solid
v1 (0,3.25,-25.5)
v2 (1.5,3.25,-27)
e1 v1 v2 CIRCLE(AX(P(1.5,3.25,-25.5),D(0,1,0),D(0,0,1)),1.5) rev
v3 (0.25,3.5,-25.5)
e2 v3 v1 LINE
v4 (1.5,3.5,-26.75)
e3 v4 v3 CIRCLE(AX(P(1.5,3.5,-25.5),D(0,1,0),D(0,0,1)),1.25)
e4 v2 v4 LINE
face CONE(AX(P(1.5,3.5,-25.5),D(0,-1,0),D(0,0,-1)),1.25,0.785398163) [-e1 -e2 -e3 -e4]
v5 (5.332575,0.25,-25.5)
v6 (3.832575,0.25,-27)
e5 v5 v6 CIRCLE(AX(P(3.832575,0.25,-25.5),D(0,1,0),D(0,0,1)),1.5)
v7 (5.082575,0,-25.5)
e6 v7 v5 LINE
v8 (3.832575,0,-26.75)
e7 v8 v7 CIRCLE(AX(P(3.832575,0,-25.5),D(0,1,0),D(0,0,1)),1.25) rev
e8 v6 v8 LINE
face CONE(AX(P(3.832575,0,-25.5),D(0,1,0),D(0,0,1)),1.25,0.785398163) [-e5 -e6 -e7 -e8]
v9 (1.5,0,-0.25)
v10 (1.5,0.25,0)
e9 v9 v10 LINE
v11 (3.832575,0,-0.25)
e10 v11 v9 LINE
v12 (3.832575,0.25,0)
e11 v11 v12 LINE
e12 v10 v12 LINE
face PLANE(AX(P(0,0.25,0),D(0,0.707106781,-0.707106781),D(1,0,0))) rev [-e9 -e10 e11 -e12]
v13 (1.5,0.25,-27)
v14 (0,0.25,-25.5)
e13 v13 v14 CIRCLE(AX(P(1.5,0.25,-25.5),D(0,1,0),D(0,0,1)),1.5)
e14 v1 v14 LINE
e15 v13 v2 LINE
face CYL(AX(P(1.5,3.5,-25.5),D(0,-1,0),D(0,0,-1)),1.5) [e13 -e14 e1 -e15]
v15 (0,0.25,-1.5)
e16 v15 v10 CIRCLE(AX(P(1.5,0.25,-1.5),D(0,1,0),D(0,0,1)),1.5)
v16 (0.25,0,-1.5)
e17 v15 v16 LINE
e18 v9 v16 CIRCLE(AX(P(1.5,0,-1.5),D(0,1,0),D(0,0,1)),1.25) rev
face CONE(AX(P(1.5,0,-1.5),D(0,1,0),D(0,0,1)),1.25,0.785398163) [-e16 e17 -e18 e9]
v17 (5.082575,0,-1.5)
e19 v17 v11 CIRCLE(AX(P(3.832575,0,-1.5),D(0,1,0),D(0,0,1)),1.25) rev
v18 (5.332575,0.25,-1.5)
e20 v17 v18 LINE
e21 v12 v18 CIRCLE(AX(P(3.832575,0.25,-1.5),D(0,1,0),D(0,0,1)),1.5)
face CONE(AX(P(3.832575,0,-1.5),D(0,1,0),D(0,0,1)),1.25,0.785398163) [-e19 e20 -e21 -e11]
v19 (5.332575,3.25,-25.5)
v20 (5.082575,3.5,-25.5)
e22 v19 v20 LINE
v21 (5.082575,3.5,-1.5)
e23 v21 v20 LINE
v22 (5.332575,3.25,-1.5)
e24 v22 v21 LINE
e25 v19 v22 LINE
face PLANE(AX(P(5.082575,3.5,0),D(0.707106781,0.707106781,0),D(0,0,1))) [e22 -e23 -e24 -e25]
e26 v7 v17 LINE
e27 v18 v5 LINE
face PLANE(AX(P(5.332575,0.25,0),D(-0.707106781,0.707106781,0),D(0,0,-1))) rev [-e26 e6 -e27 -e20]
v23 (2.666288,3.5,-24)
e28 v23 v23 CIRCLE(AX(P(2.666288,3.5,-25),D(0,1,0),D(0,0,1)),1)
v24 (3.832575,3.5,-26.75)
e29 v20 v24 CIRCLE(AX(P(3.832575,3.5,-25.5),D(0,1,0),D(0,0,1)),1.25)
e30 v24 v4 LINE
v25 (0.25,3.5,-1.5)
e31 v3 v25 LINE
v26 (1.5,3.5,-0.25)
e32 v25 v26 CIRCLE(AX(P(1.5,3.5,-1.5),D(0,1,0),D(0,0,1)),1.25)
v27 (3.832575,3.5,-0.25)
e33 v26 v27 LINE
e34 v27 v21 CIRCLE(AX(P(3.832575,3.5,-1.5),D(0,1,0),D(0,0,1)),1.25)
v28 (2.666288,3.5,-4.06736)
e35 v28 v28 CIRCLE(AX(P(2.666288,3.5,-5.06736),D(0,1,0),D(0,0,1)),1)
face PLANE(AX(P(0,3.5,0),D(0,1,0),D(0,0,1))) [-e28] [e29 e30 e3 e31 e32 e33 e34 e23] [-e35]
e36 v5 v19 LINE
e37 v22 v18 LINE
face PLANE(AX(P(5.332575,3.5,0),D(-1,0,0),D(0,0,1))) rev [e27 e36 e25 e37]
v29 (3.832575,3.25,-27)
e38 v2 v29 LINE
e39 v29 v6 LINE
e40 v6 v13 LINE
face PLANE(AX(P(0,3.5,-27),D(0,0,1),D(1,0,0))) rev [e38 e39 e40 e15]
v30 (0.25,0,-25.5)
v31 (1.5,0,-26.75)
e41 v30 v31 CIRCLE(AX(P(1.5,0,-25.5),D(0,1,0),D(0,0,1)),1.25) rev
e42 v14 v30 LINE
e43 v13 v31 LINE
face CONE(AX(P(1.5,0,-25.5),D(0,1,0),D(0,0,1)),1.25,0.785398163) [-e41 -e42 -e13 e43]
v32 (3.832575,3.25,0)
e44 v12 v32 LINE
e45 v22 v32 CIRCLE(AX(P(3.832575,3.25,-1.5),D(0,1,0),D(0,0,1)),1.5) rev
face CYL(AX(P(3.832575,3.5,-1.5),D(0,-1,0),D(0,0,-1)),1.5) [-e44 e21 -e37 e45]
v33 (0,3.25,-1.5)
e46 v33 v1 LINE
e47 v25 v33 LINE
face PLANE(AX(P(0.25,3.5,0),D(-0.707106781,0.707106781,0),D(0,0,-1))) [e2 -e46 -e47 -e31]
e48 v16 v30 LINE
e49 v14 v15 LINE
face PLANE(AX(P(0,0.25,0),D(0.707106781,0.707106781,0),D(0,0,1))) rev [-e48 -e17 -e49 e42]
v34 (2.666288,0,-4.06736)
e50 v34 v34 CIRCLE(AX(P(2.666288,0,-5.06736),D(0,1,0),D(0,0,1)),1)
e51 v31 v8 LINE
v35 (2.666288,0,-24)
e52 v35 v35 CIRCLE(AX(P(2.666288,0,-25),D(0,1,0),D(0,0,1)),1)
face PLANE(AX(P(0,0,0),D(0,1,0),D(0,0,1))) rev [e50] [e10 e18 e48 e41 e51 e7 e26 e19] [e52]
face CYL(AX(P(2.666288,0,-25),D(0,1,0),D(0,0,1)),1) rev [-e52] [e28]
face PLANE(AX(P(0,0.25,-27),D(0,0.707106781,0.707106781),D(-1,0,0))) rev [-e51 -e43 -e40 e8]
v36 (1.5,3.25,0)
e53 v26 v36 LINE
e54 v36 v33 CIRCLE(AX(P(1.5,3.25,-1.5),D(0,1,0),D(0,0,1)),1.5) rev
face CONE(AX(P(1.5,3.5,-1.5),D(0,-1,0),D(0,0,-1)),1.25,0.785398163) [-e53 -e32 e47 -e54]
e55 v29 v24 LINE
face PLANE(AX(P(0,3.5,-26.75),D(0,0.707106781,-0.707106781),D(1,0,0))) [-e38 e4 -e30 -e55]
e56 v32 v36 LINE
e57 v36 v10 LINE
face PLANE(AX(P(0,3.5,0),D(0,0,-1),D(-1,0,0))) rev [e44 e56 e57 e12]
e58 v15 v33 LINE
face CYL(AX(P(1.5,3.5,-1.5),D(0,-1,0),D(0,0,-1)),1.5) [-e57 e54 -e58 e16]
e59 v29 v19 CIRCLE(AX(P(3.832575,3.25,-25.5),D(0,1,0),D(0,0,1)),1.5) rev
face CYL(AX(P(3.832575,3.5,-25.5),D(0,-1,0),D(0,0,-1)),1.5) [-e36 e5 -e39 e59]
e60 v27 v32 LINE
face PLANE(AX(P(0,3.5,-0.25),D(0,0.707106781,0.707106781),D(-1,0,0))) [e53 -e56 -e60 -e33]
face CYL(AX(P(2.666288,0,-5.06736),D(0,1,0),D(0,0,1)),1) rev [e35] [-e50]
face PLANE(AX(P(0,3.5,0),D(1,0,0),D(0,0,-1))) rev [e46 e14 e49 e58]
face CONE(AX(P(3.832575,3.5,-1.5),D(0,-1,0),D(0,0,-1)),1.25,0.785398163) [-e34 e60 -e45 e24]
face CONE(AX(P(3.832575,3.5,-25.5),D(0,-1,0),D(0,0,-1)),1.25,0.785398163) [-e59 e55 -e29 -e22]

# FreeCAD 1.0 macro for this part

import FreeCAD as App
import Part
import Sketcher
from FreeCAD import Vector


def edges_at(feature, points):
    """Names of the edges that pass closest to the given points."""
    edges = feature.Shape.Edges
    near = lambda p: min(range(len(edges)), key=lambda i: edges[i].distToShape(Part.Vertex(*p))[0])
    return sorted({f"Edge{near(p) + 1}" for p in points})

doc = App.newDocument("Part")
params = doc.addObject("Spreadsheet::Sheet", "Params")
for row, (alias, value) in enumerate([
    ("sketch1_height", "27 mm"),
    ("pad1_length", "3.5 mm"),
    ("fillet_radius", "1.5 mm"),
    ("sketch2_diameter", "2 mm"),
    ("chamfer_size", "0.25 mm"),
], start=1):
    params.set(f"A{row}", alias)
    params.set(f"B{row}", "=" + value)
    params.setAlias(f"B{row}", alias)

body = doc.addObject("PartDesign::Body", "Body")

# Sketch on XZ plane
sketch1 = doc.addObject("Sketcher::SketchObject", "Sketch")
body.addObject(sketch1)
sketch1.AttachmentSupport = (doc.XZ_Plane, [""])
sketch1.MapMode = "FlatFace"
sketch1.addGeometry([
    Part.LineSegment(Vector(0, -27, 0), Vector(0, 0, 0)),
    Part.LineSegment(Vector(0, 0, 0), Vector(5, 0, 0)),
    Part.LineSegment(Vector(5, 0, 0), Vector(5, -27, 0)),
    Part.LineSegment(Vector(5, -27, 0), Vector(0, -27, 0)),
], False)
sketch1.addConstraint([
    Sketcher.Constraint("Coincident", 0, 2, 1, 1),
    Sketcher.Constraint("Coincident", 1, 2, 2, 1),
    Sketcher.Constraint("Coincident", 2, 2, 3, 1),
    Sketcher.Constraint("Coincident", 3, 2, 0, 1),
    Sketcher.Constraint("Vertical", 0),
    Sketcher.Constraint("Horizontal", 1),
    Sketcher.Constraint("Vertical", 2),
    Sketcher.Constraint("Horizontal", 3),
    Sketcher.Constraint("Coincident", 0, 2, -1, 1),
    Sketcher.Constraint("DistanceY", 0, 1, 0, 2, 27.0),
    Sketcher.Constraint("DistanceX", 1, 1, 1, 2, 5.332575),
])
sketch1.setExpression("Constraints[9]", "Params.sketch1_height")
pad1 = doc.addObject("PartDesign::Pad", "Pad")
body.addObject(pad1)
pad1.Profile = sketch1
pad1.setExpression("Length", "Params.pad1_length")
pad1.Reversed = True
doc.recompute()

fillet = doc.addObject("PartDesign::Fillet", "Fillet")
body.addObject(fillet)
fillet.Base = (pad1, edges_at(pad1, [
    (5.333, 1.75, -27),
    (5.333, 1.75, 0),
    (0, 1.75, 0),
    (0, 1.75, -27),
]))
fillet.setExpression("Radius", "Params.fillet_radius")

# Sketch on XZ plane
sketch2 = doc.addObject("Sketcher::SketchObject", "Sketch001")
body.addObject(sketch2)
sketch2.AttachmentSupport = (doc.XZ_Plane, [""])
sketch2.MapMode = "FlatFace"
sketch2.AttachmentOffset = App.Placement(Vector(0, 0, -3.5), App.Rotation())
sketch2.addGeometry([
    Part.Circle(Vector(2.7, -25, 0), Vector(0, 0, 1), 1),
    Part.Circle(Vector(2.7, -5.1, 0), Vector(0, 0, 1), 1),
], False)
sketch2.addConstraint([
    Sketcher.Constraint("Equal", 0, 1),
    Sketcher.Constraint("Vertical", 0, 3, 1, 3),
    Sketcher.Constraint("Diameter", 0, 2.0),
    Sketcher.Constraint("DistanceY", 0, 3, -1, 1, 25.0),
    Sketcher.Constraint("DistanceY", 1, 3, -1, 1, 5.06736),
    Sketcher.Constraint("DistanceX", -1, 1, 0, 3, 2.666288),
])
sketch2.setExpression("Constraints[2]", "Params.sketch2_diameter")
pocket1 = doc.addObject("PartDesign::Pocket", "Pocket")
body.addObject(pocket1)
pocket1.Profile = sketch2
pocket1.Type = "ThroughAll"
pocket1.Reversed = True
doc.recompute()

chamfer = doc.addObject("PartDesign::Chamfer", "Chamfer")
body.addObject(chamfer)
chamfer.Base = (pocket1, edges_at(pocket1, [
    (5.333, 0, -13.5),
    (5.333, 3.5, -13.5),
    (2.666, 0, -27),
    (2.666, 0, 0),
    (0, 0, -13.5),
    (4.893, 0, -26.561),
    (0.439, 0, -26.561),
    (0.439, 0, -0.439),
    (4.893, 0, -0.439),
    (2.666, 3.5, 0),
    (2.666, 3.5, -27),
    (0, 3.5, -13.5),
    (4.893, 3.5, -26.561),
    (0.439, 3.5, -26.561),
    (0.439, 3.5, -0.439),
    (4.893, 3.5, -0.439),
]))
chamfer.setExpression("Size", "Params.chamfer_size")

doc.recompute()
